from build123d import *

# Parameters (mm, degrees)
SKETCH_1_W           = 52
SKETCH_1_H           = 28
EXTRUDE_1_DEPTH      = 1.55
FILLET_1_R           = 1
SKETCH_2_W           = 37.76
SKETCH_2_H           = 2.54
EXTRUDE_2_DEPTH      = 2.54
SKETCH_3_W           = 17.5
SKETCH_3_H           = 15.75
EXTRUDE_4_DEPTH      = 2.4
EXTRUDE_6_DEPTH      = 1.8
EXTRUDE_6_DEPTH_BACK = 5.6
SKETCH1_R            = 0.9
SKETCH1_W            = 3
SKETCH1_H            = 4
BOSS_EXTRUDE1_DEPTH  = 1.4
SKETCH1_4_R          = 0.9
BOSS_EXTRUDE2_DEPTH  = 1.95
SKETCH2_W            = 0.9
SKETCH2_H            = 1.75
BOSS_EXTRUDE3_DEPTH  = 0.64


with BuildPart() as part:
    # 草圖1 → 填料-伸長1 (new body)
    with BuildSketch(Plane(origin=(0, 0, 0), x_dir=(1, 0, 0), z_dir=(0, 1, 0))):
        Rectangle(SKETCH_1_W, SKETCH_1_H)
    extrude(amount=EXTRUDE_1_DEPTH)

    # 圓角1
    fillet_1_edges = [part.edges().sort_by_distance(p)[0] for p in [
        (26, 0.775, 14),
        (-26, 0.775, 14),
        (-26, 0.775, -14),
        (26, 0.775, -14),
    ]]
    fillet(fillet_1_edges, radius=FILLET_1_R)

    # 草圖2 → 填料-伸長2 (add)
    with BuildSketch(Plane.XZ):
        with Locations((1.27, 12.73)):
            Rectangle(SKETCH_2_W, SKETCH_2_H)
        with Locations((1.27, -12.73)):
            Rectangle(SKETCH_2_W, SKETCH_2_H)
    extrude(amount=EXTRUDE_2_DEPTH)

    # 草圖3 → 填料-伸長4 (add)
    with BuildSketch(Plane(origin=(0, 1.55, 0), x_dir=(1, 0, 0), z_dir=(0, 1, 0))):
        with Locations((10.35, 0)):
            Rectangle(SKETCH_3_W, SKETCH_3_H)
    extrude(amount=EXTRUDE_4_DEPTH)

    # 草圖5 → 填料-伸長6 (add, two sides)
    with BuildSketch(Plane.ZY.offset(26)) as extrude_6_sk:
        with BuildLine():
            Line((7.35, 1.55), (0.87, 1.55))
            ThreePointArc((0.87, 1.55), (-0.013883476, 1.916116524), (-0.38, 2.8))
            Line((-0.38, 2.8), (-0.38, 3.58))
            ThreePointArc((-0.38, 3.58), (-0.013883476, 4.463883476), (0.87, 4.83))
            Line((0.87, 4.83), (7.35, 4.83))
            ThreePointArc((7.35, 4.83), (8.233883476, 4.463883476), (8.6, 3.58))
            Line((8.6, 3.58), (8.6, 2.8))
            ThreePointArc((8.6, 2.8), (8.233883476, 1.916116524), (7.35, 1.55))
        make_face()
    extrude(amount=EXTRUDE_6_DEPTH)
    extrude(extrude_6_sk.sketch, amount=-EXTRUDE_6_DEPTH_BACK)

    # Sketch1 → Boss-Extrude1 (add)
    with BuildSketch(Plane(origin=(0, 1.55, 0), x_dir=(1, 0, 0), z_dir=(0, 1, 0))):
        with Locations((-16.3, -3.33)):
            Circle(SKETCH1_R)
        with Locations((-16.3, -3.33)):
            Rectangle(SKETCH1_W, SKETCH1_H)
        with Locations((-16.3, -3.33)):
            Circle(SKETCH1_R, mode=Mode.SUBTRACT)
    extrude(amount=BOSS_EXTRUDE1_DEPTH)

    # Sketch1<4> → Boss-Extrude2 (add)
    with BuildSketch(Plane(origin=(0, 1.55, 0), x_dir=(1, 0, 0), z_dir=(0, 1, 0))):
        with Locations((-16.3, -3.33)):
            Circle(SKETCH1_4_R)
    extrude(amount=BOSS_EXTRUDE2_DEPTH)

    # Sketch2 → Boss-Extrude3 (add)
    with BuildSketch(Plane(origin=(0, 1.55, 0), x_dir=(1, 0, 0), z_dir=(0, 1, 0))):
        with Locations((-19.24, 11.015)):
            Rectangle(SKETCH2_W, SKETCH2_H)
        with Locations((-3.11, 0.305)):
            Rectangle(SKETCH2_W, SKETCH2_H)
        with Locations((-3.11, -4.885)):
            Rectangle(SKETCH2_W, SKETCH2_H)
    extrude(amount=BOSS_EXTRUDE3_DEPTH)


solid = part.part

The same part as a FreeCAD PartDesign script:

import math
import FreeCAD as App
import Part
import Sketcher

V = App.Vector
Q = App.Units.Quantity


def edges_at(feature, points):
    """Names of the edges that pass closest to the given points."""
    edges = feature.Shape.Edges
    near = lambda p: min(range(len(edges)), key=lambda i: edges[i].distToShape(Part.Vertex(*p))[0])
    return sorted({f"Edge{near(p) + 1}" for p in points})

doc = App.newDocument("Part")
body = doc.addObject("PartDesign::Body", "Body")

# Sketch on XZ plane
sketch1 = body.newObject("Sketcher::SketchObject", "Sketch")
sketch1.AttachmentSupport = (doc.getObject("XZ_Plane"), [""])
sketch1.MapMode = "FlatFace"
sketch1.addGeometry(Part.LineSegment(V(-26, -14, 0), V(-26, 14, 0)), False)
sketch1.addGeometry(Part.LineSegment(V(-26, 14, 0), V(26, 14, 0)), False)
sketch1.addGeometry(Part.LineSegment(V(26, 14, 0), V(26, -14, 0)), False)
sketch1.addGeometry(Part.LineSegment(V(26, -14, 0), V(-26, -14, 0)), False)
sketch1.addConstraint(Sketcher.Constraint("Coincident", 0, 2, 1, 1))
sketch1.addConstraint(Sketcher.Constraint("Coincident", 1, 2, 2, 1))
sketch1.addConstraint(Sketcher.Constraint("Coincident", 2, 2, 3, 1))
sketch1.addConstraint(Sketcher.Constraint("Coincident", 3, 2, 0, 1))
sketch1.addConstraint(Sketcher.Constraint("Vertical", 0))
sketch1.addConstraint(Sketcher.Constraint("Horizontal", 1))
sketch1.addConstraint(Sketcher.Constraint("Vertical", 2))
sketch1.addConstraint(Sketcher.Constraint("Horizontal", 3))
sketch1.addConstraint(Sketcher.Constraint("Symmetric", 0, 2, 2, 2, -1, 1))
sketch1.addConstraint(Sketcher.Constraint("DistanceX", 1, 1, 1, 2, Q("52 mm")))
sketch1.addConstraint(Sketcher.Constraint("DistanceY", 0, 1, 0, 2, Q("28 mm")))
pad1 = body.newObject("PartDesign::Pad", "Pad")
pad1.Profile = sketch1
pad1.Length = 1.55
pad1.Reversed = True
doc.recompute()

fillet = body.newObject("PartDesign::Fillet", "Fillet")
fillet.Base = (pad1, edges_at(pad1, [
    (26, 0.775, 14),
    (-26, 0.775, 14),
    (-26, 0.775, -14),
    (26, 0.775, -14),
]))
fillet.Radius = 1

# Sketch on XZ plane
sketch2 = body.newObject("Sketcher::SketchObject", "Sketch001")
sketch2.AttachmentSupport = (doc.getObject("XZ_Plane"), [""])
sketch2.MapMode = "FlatFace"
sketch2.addGeometry(Part.LineSegment(V(-17.6, 14, 0), V(-17.6, 11.5, 0)), False)
sketch2.addGeometry(Part.LineSegment(V(-17.6, 11.5, 0), V(20.1, 11.5, 0)), False)
sketch2.addGeometry(Part.LineSegment(V(20.1, 11.5, 0), V(20.1, 14, 0)), False)
sketch2.addGeometry(Part.LineSegment(V(20.1, 14, 0), V(-17.6, 14, 0)), False)
sketch2.addGeometry(Part.LineSegment(V(-17.6, -11.5, 0), V(-17.6, -14, 0)), False)
sketch2.addGeometry(Part.LineSegment(V(-17.6, -14, 0), V(20.1, -14, 0)), False)
sketch2.addGeometry(Part.LineSegment(V(20.1, -14, 0), V(20.1, -11.5, 0)), False)
sketch2.addGeometry(Part.LineSegment(V(20.1, -11.5, 0), V(-17.6, -11.5, 0)), False)
sketch2.addConstraint(Sketcher.Constraint("Coincident", 0, 2, 1, 1))
sketch2.addConstraint(Sketcher.Constraint("Coincident", 1, 2, 2, 1))
sketch2.addConstraint(Sketcher.Constraint("Coincident", 2, 2, 3, 1))
sketch2.addConstraint(Sketcher.Constraint("Coincident", 3, 2, 0, 1))
sketch2.addConstraint(Sketcher.Constraint("Coincident", 4, 2, 5, 1))
sketch2.addConstraint(Sketcher.Constraint("Coincident", 5, 2, 6, 1))
sketch2.addConstraint(Sketcher.Constraint("Coincident", 6, 2, 7, 1))
sketch2.addConstraint(Sketcher.Constraint("Coincident", 7, 2, 4, 1))
sketch2.addConstraint(Sketcher.Constraint("Vertical", 0))
sketch2.addConstraint(Sketcher.Constraint("Horizontal", 1))
sketch2.addConstraint(Sketcher.Constraint("Vertical", 2))
sketch2.addConstraint(Sketcher.Constraint("Horizontal", 3))
sketch2.addConstraint(Sketcher.Constraint("Vertical", 4))
sketch2.addConstraint(Sketcher.Constraint("Horizontal", 5))
sketch2.addConstraint(Sketcher.Constraint("Vertical", 6))
sketch2.addConstraint(Sketcher.Constraint("Horizontal", 7))
sketch2.addConstraint(Sketcher.Constraint("Symmetric", 3, 2, 4, 2, -1))
sketch2.addConstraint(Sketcher.Constraint("Symmetric", 1, 2, 6, 2, -1))
sketch2.addConstraint(Sketcher.Constraint("DistanceY", -1, 1, 2, 2, Q("14 mm")))
sketch2.addConstraint(Sketcher.Constraint("DistanceX", 1, 1, 1, 2, Q("37.76 mm")))
sketch2.addConstraint(Sketcher.Constraint("DistanceY", 0, 2, 0, 1, Q("2.54 mm")))
sketch2.addConstraint(Sketcher.Constraint("DistanceX", 0, 2, -1, 1, Q("17.61 mm")))
pad2 = body.newObject("PartDesign::Pad", "Pad001")
pad2.Profile = sketch2
pad2.Length = 2.54

# Sketch on XZ plane
sketch3 = body.newObject("Sketcher::SketchObject", "Sketch002")
sketch3.AttachmentSupport = (doc.getObject("XZ_Plane"), [""])
sketch3.MapMode = "FlatFace"
sketch3.AttachmentOffset = App.Placement(V(0, 0, -1.55), App.Rotation())
sketch3.addGeometry(Part.LineSegment(V(2, -8, 0), V(2, 8, 0)), False)
sketch3.addGeometry(Part.LineSegment(V(2, 8, 0), V(19, 8, 0)), False)
sketch3.addGeometry(Part.LineSegment(V(19, 8, 0), V(19, -8, 0)), False)
sketch3.addGeometry(Part.LineSegment(V(19, -8, 0), V(2, -8, 0)), False)
sketch3.addConstraint(Sketcher.Constraint("Coincident", 0, 2, 1, 1))
sketch3.addConstraint(Sketcher.Constraint("Coincident", 1, 2, 2, 1))
sketch3.addConstraint(Sketcher.Constraint("Coincident", 2, 2, 3, 1))
sketch3.addConstraint(Sketcher.Constraint("Coincident", 3, 2, 0, 1))
sketch3.addConstraint(Sketcher.Constraint("Vertical", 0))
sketch3.addConstraint(Sketcher.Constraint("Horizontal", 1))
sketch3.addConstraint(Sketcher.Constraint("Vertical", 2))
sketch3.addConstraint(Sketcher.Constraint("Horizontal", 3))
sketch3.addConstraint(Sketcher.Constraint("DistanceX", 1, 1, 1, 2, Q("17.5 mm")))
sketch3.addConstraint(Sketcher.Constraint("DistanceY", 0, 1, 0, 2, Q("15.75 mm")))
sketch3.addConstraint(Sketcher.Constraint("DistanceX", -1, 1, 0, 2, Q("1.6 mm")))
sketch3.addConstraint(Sketcher.Constraint("DistanceY", -1, 1, 0, 2, Q("7.875 mm")))
pad3 = body.newObject("PartDesign::Pad", "Pad002")
pad3.Profile = sketch3
pad3.Length = 2.4
pad3.Reversed = True

# Sketch on YZ plane
sketch4 = body.newObject("Sketcher::SketchObject", "Sketch003")
sketch4.AttachmentSupport = (doc.getObject("YZ_Plane"), [""])
sketch4.MapMode = "FlatFace"
sketch4.AttachmentOffset = App.Placement(V(0, 0, -26), App.Rotation())
sketch4.addGeometry(Part.LineSegment(V(1.6, 0.9, 0), V(1.6, 7.3, 0)), False)
sketch4.addGeometry(Part.ArcOfCircle(Part.Circle(V(2.8, 7.3, 0), V(0, 0, 1), 1.3), math.radians(90), math.radians(180)), False)
sketch4.addGeometry(Part.LineSegment(V(2.8, 8.6, 0), V(3.6, 8.6, 0)), False)
sketch4.addGeometry(Part.ArcOfCircle(Part.Circle(V(3.6, 7.3, 0), V(0, 0, 1), 1.3), math.radians(0), math.radians(90)), False)
sketch4.addGeometry(Part.LineSegment(V(4.8, 7.3, 0), V(4.8, 0.9, 0)), False)
sketch4.addGeometry(Part.ArcOfCircle(Part.Circle(V(3.6, 0.9, 0), V(0, 0, 1), 1.3), math.radians(-90), math.radians(0)), False)
sketch4.addGeometry(Part.LineSegment(V(3.6, -0.4, 0), V(2.8, -0.4, 0)), False)
sketch4.addGeometry(Part.ArcOfCircle(Part.Circle(V(2.8, 0.9, 0), V(0, 0, 1), 1.3), math.radians(-180), math.radians(-90)), False)
sketch4.addConstraint(Sketcher.Constraint("Tangent", 0, 2, 1, 2))
sketch4.addConstraint(Sketcher.Constraint("Tangent", 1, 1, 2, 1))
sketch4.addConstraint(Sketcher.Constraint("Tangent", 2, 2, 3, 2))
sketch4.addConstraint(Sketcher.Constraint("Tangent", 3, 1, 4, 1))
sketch4.addConstraint(Sketcher.Constraint("Tangent", 4, 2, 5, 2))
sketch4.addConstraint(Sketcher.Constraint("Tangent", 5, 1, 6, 1))
sketch4.addConstraint(Sketcher.Constraint("Tangent", 6, 2, 7, 2))
sketch4.addConstraint(Sketcher.Constraint("Tangent", 7, 1, 0, 1))
sketch4.addConstraint(Sketcher.Constraint("Vertical", 0))
sketch4.addConstraint(Sketcher.Constraint("Horizontal", 2))
sketch4.addConstraint(Sketcher.Constraint("Vertical", 4))
sketch4.addConstraint(Sketcher.Constraint("Horizontal", 6))
sketch4.addConstraint(Sketcher.Constraint("Equal", 1, 3))
sketch4.addConstraint(Sketcher.Constraint("Equal", 3, 5))
sketch4.addConstraint(Sketcher.Constraint("Equal", 5, 7))
sketch4.addConstraint(Sketcher.Constraint("Radius", 1, Q("1.25 mm")))
sketch4.addConstraint(Sketcher.Constraint("DistanceX", 2, 1, 2, 2, Q("0.78 mm")))
sketch4.addConstraint(Sketcher.Constraint("DistanceY", 0, 1, 0, 2, Q("6.48 mm")))
sketch4.addConstraint(Sketcher.Constraint("DistanceX", -1, 1, 1, 3, Q("2.8 mm")))
sketch4.addConstraint(Sketcher.Constraint("DistanceY", -1, 1, 1, 1, Q("8.6 mm")))
pad4 = body.newObject("PartDesign::Pad", "Pad003")
pad4.Profile = sketch4
pad4.Type = "TwoLengths"
pad4.Length = 1.8
pad4.Length2 = 5.6
pad4.Reversed = True

# Sketch on XZ plane
sketch5 = body.newObject("Sketcher::SketchObject", "Sketch004")
sketch5.AttachmentSupport = (doc.getObject("XZ_Plane"), [""])
sketch5.MapMode = "FlatFace"
sketch5.AttachmentOffset = App.Placement(V(0, 0, -1.55), App.Rotation())
sketch5.addGeometry(Part.LineSegment(V(-17.8, 1.3, 0), V(-17.8, 5.3, 0)), False)
sketch5.addGeometry(Part.LineSegment(V(-17.8, 5.3, 0), V(-14.8, 5.3, 0)), False)
sketch5.addGeometry(Part.LineSegment(V(-14.8, 5.3, 0), V(-14.8, 1.3, 0)), False)
sketch5.addGeometry(Part.LineSegment(V(-14.8, 1.3, 0), V(-17.8, 1.3, 0)), False)
sketch5.addGeometry(Part.Circle(V(-16.3, 3.3, 0), V(0, 0, 1), 0.9), False)
sketch5.addConstraint(Sketcher.Constraint("Coincident", 0, 2, 1, 1))
sketch5.addConstraint(Sketcher.Constraint("Coincident", 1, 2, 2, 1))
sketch5.addConstraint(Sketcher.Constraint("Coincident", 2, 2, 3, 1))
sketch5.addConstraint(Sketcher.Constraint("Coincident", 3, 2, 0, 1))
sketch5.addConstraint(Sketcher.Constraint("Vertical", 0))
sketch5.addConstraint(Sketcher.Constraint("Horizontal", 1))
sketch5.addConstraint(Sketcher.Constraint("Vertical", 2))
sketch5.addConstraint(Sketcher.Constraint("Horizontal", 3))
sketch5.addConstraint(Sketcher.Constraint("Diameter", 4, Q("1.8 mm")))
sketch5.addConstraint(Sketcher.Constraint("DistanceX", 1, 1, 1, 2, Q("3 mm")))
sketch5.addConstraint(Sketcher.Constraint("DistanceY", 0, 1, 0, 2, Q("4 mm")))
sketch5.addConstraint(Sketcher.Constraint("DistanceY", 4, 3, 0, 2, Q("2 mm")))
sketch5.addConstraint(Sketcher.Constraint("DistanceX", 4, 3, -1, 1, Q("16.3 mm")))
sketch5.addConstraint(Sketcher.Constraint("DistanceX", 0, 2, -1, 1, Q("17.8 mm")))
sketch5.addConstraint(Sketcher.Constraint("DistanceY", -1, 1, 4, 3, Q("3.33 mm")))
pad5 = body.newObject("PartDesign::Pad", "Pad004")
pad5.Profile = sketch5
pad5.Length = 1.4
pad5.Reversed = True

# Sketch on XZ plane
sketch6 = body.newObject("Sketcher::SketchObject", "Sketch005")
sketch6.AttachmentSupport = (doc.getObject("XZ_Plane"), [""])
sketch6.MapMode = "FlatFace"
sketch6.AttachmentOffset = App.Placement(V(0, 0, -1.55), App.Rotation())
sketch6.addGeometry(Part.Circle(V(-16.3, 3.3, 0), V(0, 0, 1), 0.9), False)
sketch6.addConstraint(Sketcher.Constraint("Diameter", 0, Q("1.8 mm")))
sketch6.addConstraint(Sketcher.Constraint("DistanceX", 0, 3, -1, 1, Q("16.3 mm")))
sketch6.addConstraint(Sketcher.Constraint("DistanceY", -1, 1, 0, 3, Q("3.33 mm")))
pad6 = body.newObject("PartDesign::Pad", "Pad005")
pad6.Profile = sketch6
pad6.Length = 1.95
pad6.Reversed = True

# Sketch on XZ plane
sketch7 = body.newObject("Sketcher::SketchObject", "Sketch006")
sketch7.AttachmentSupport = (doc.getObject("XZ_Plane"), [""])
sketch7.MapMode = "FlatFace"
sketch7.AttachmentOffset = App.Placement(V(0, 0, -1.55), App.Rotation())
sketch7.addGeometry(Part.LineSegment(V(-19.7, -11.9, 0), V(-19.7, -10.1, 0)), False)
sketch7.addGeometry(Part.LineSegment(V(-19.7, -10.1, 0), V(-18.8, -10.1, 0)), False)
sketch7.addGeometry(Part.LineSegment(V(-18.8, -10.1, 0), V(-18.8, -11.9, 0)), False)
sketch7.addGeometry(Part.LineSegment(V(-18.8, -11.9, 0), V(-19.7, -11.9, 0)), False)
sketch7.addGeometry(Part.LineSegment(V(-3.6, -1.2, 0), V(-3.6, 0.6, 0)), False)
sketch7.addGeometry(Part.LineSegment(V(-3.6, 0.6, 0), V(-2.7, 0.6, 0)), False)
sketch7.addGeometry(Part.LineSegment(V(-2.7, 0.6, 0), V(-2.7, -1.2, 0)), False)
sketch7.addGeometry(Part.LineSegment(V(-2.7, -1.2, 0), V(-3.6, -1.2, 0)), False)
sketch7.addGeometry(Part.LineSegment(V(-3.6, 4, 0), V(-3.6, 5.8, 0)), False)
sketch7.addGeometry(Part.LineSegment(V(-3.6, 5.8, 0), V(-2.7, 5.8, 0)), False)
sketch7.addGeometry(Part.LineSegment(V(-2.7, 5.8, 0), V(-2.7, 4, 0)), False)
sketch7.addGeometry(Part.LineSegment(V(-2.7, 4, 0), V(-3.6, 4, 0)), False)
sketch7.addConstraint(Sketcher.Constraint("Coincident", 0, 2, 1, 1))
sketch7.addConstraint(Sketcher.Constraint("Coincident", 1, 2, 2, 1))
sketch7.addConstraint(Sketcher.Constraint("Coincident", 2, 2, 3, 1))
sketch7.addConstraint(Sketcher.Constraint("Coincident", 3, 2, 0, 1))
sketch7.addConstraint(Sketcher.Constraint("Coincident", 4, 2, 5, 1))
sketch7.addConstraint(Sketcher.Constraint("Coincident", 5, 2, 6, 1))
sketch7.addConstraint(Sketcher.Constraint("Coincident", 6, 2, 7, 1))
sketch7.addConstraint(Sketcher.Constraint("Coincident", 7, 2, 4, 1))
sketch7.addConstraint(Sketcher.Constraint("Coincident", 8, 2, 9, 1))
sketch7.addConstraint(Sketcher.Constraint("Coincident", 9, 2, 10, 1))
sketch7.addConstraint(Sketcher.Constraint("Coincident", 10, 2, 11, 1))
sketch7.addConstraint(Sketcher.Constraint("Coincident", 11, 2, 8, 1))
sketch7.addConstraint(Sketcher.Constraint("Vertical", 0))
sketch7.addConstraint(Sketcher.Constraint("Horizontal", 1))
sketch7.addConstraint(Sketcher.Constraint("Vertical", 2))
sketch7.addConstraint(Sketcher.Constraint("Horizontal", 3))
sketch7.addConstraint(Sketcher.Constraint("Vertical", 4))
sketch7.addConstraint(Sketcher.Constraint("Horizontal", 5))
sketch7.addConstraint(Sketcher.Constraint("Vertical", 6))
sketch7.addConstraint(Sketcher.Constraint("Horizontal", 7))
sketch7.addConstraint(Sketcher.Constraint("Vertical", 8))
sketch7.addConstraint(Sketcher.Constraint("Horizontal", 9))
sketch7.addConstraint(Sketcher.Constraint("Vertical", 10))
sketch7.addConstraint(Sketcher.Constraint("Horizontal", 11))
sketch7.addConstraint(Sketcher.Constraint("Vertical", 7, 2, 8, 2))
sketch7.addConstraint(Sketcher.Constraint("Vertical", 6, 2, 9, 2))
sketch7.addConstraint(Sketcher.Constraint("Equal", 3, 5))
sketch7.addConstraint(Sketcher.Constraint("Equal", 2, 4))
sketch7.addConstraint(Sketcher.Constraint("Equal", 6, 8))
sketch7.addConstraint(Sketcher.Constraint("DistanceX", 1, 1, 1, 2, Q("0.9 mm")))
sketch7.addConstraint(Sketcher.Constraint("DistanceY", 0, 1, 0, 2, Q("1.75 mm")))
sketch7.addConstraint(Sketcher.Constraint("DistanceY", 1, 2, 8, 2, Q("15.9 mm")))
sketch7.addConstraint(Sketcher.Constraint("DistanceX", 0, 2, -1, 1, Q("19.69 mm")))
sketch7.addConstraint(Sketcher.Constraint("DistanceY", 0, 2, -1, 1, Q("10.14 mm")))
sketch7.addConstraint(Sketcher.Constraint("DistanceX", 4, 2, -1, 1, Q("3.56 mm")))
sketch7.addConstraint(Sketcher.Constraint("DistanceY", -1, 1, 4, 2, Q("0.57 mm")))
pad7 = body.newObject("PartDesign::Pad", "Pad006")
pad7.Profile = sketch7
pad7.Length = 0.64
pad7.Reversed = True

doc.recompute()
